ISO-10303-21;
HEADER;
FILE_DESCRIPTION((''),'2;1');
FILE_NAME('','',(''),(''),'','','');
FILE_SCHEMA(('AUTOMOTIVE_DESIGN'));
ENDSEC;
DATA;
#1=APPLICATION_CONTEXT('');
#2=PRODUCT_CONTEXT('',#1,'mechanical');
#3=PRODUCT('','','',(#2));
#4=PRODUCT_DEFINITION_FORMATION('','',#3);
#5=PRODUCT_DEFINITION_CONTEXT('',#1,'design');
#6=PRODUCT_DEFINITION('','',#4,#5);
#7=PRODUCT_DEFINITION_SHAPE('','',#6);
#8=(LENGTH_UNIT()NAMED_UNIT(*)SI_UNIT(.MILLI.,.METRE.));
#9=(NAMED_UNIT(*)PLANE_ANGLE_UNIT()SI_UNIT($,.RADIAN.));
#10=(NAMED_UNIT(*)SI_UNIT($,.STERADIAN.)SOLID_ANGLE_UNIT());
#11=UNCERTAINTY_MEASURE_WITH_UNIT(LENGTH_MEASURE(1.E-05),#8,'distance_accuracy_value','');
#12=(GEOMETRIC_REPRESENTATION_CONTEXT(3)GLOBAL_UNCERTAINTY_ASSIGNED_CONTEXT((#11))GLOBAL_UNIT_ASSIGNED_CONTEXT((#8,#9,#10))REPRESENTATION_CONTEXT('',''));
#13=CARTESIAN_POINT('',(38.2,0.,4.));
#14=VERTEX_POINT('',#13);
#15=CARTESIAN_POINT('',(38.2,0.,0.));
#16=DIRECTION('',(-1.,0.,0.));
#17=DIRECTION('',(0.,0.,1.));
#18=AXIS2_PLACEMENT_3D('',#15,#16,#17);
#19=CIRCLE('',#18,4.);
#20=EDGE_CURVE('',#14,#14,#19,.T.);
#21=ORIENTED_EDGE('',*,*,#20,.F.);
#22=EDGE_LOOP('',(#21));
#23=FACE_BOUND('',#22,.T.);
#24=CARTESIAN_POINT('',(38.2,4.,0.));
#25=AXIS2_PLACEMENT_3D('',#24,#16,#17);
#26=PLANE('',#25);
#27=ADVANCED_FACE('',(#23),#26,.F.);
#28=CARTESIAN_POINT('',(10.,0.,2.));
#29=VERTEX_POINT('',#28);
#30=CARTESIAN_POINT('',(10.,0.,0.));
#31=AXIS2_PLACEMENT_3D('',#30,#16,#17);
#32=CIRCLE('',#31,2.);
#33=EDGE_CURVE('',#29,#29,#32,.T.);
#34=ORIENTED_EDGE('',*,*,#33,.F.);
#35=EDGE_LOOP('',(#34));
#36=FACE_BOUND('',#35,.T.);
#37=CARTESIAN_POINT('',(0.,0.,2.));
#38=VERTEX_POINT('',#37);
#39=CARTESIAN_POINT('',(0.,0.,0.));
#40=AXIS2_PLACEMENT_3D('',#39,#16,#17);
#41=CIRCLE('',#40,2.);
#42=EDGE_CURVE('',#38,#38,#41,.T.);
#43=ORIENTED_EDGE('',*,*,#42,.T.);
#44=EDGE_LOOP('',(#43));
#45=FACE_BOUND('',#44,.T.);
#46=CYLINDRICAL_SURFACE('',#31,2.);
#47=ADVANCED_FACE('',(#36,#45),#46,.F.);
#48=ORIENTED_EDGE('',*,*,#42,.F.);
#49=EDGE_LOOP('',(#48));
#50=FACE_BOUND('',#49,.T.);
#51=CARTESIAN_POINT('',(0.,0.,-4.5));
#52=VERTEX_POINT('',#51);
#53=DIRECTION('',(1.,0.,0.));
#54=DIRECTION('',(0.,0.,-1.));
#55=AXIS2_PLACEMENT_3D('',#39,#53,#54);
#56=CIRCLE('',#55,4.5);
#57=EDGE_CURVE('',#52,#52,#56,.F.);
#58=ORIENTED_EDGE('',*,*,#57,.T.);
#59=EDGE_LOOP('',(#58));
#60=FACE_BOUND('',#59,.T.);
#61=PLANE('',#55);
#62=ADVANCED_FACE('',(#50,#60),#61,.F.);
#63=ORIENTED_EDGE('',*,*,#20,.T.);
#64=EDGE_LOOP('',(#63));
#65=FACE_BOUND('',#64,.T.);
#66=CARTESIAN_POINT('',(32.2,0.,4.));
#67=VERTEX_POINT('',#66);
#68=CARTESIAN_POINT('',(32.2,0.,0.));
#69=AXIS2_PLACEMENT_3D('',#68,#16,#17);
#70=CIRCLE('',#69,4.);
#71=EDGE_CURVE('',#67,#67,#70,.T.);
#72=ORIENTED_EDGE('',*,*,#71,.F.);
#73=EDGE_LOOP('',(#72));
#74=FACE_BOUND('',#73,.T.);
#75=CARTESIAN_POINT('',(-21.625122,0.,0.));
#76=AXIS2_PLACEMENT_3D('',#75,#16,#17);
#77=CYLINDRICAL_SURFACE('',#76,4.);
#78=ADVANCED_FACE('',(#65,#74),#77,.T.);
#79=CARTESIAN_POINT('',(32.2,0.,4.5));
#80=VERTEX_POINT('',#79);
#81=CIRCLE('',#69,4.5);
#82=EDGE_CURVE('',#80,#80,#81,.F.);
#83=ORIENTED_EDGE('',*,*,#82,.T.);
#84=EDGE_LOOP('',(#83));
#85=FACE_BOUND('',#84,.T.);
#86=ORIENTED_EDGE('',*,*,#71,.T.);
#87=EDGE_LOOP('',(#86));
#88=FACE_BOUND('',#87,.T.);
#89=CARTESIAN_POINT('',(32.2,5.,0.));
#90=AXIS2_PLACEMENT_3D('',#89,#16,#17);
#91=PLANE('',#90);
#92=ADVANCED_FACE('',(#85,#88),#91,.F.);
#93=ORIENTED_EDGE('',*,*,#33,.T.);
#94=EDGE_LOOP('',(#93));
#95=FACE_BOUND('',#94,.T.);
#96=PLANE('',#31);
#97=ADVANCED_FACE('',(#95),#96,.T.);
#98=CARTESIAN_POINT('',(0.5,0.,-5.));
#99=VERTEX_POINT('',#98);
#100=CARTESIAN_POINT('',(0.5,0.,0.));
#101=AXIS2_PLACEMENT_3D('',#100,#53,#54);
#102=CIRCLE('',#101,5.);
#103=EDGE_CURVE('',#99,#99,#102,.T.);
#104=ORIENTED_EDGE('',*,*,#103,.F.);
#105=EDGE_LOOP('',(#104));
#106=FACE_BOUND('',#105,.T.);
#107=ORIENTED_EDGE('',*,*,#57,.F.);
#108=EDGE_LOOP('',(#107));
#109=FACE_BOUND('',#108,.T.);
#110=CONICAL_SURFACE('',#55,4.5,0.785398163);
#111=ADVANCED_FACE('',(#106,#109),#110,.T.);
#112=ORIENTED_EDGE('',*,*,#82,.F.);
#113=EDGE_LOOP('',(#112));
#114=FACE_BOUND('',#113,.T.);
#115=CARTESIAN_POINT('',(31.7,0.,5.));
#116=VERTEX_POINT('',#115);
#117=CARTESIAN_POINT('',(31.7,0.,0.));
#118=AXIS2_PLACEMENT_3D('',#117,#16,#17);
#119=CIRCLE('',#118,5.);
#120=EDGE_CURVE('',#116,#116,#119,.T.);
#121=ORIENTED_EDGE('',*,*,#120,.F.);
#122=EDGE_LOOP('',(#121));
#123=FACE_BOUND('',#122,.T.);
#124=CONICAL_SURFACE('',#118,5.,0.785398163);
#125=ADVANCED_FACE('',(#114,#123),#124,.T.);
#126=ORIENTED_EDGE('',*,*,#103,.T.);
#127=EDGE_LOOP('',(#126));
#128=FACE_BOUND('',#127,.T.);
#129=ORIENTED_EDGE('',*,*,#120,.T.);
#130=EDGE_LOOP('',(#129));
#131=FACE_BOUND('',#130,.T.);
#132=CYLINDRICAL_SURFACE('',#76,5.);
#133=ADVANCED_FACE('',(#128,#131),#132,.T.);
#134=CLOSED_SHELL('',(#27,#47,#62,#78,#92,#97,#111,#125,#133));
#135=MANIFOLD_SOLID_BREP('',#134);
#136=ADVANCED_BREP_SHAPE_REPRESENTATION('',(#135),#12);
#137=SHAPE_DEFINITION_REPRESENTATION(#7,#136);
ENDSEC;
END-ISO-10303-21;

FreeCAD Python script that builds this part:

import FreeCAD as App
import Part
import Sketcher

V = App.Vector


def edges_at(feature, points):
    """Names of the edges that pass closest to the given points."""
    edges = feature.Shape.Edges
    near = lambda p: min(range(len(edges)), key=lambda i: edges[i].distToShape(Part.Vertex(*p))[0])
    return sorted({f"Edge{near(p) + 1}" for p in points})


def add_polygon(sketch, points):
    """Adds a closed chain of lines whose ends are joined by coincident constraints."""
    first, n = sketch.GeometryCount, len(points)
    for a, b in zip(points, points[1:] + points[:1]):
        sketch.addGeometry(Part.LineSegment(App.Vector(*a, 0), App.Vector(*b, 0)), False)
    for i in range(n):
        sketch.addConstraint(Sketcher.Constraint("Coincident", first + i, 2, first + (i + 1) % n, 1))

doc = App.newDocument("Part")
body = doc.addObject("PartDesign::Body", "Body")

sketch1 = doc.addObject("Sketcher::SketchObject", "Sketch")
body.addObject(sketch1)
sketch1.AttachmentSupport = (doc.XY_Plane, [""])
sketch1.MapMode = "FlatFace"
add_polygon(sketch1, [(0, 5), (0, 0), (38.2, 0), (38.2, 4), (32.2, 4), (32.2, 5)])
sketch1.addConstraint(Sketcher.Constraint("Vertical", 0))
sketch1.addConstraint(Sketcher.Constraint("Horizontal", 1))
sketch1.addConstraint(Sketcher.Constraint("Vertical", 2))
sketch1.addConstraint(Sketcher.Constraint("Horizontal", 3))
sketch1.addConstraint(Sketcher.Constraint("Vertical", 4))
sketch1.addConstraint(Sketcher.Constraint("Horizontal", 5))
sketch1.addConstraint(Sketcher.Constraint("Coincident", 0, 2, -1, 1))
sketch1.addConstraint(Sketcher.Constraint("DistanceX", 3, 2, 3, 1, 6.0))
sketch1.addConstraint(Sketcher.Constraint("DistanceY", 0, 2, 0, 1, 5.0))
sketch1.addConstraint(Sketcher.Constraint("DistanceY", 2, 1, 2, 2, 4.0))
sketch1.addConstraint(Sketcher.Constraint("DistanceX", 1, 1, 1, 2, 38.2))
revolution = doc.addObject("PartDesign::Revolution", "Revolution")
body.addObject(revolution)
revolution.Profile = sketch1
revolution.ReferenceAxis = (sketch1, ["H_Axis"])
revolution.Angle = 360
doc.recompute()

chamfer = doc.addObject("PartDesign::Chamfer", "Chamfer")
body.addObject(chamfer)
chamfer.Base = (revolution, edges_at(revolution, [(32.2, 0, -5), (0, 0, -5)]))
chamfer.Size = 0.5

sketch2 = doc.addObject("Sketcher::SketchObject", "Sketch001")
body.addObject(sketch2)
sketch2.AttachmentSupport = (doc.YZ_Plane, [""])
sketch2.MapMode = "FlatFace"
sketch2.addGeometry(Part.Circle(V(0, 0, 0), V(0, 0, 1), 2), False)
sketch2.addConstraint(Sketcher.Constraint("Coincident", 0, 3, -1, 1))
sketch2.addConstraint(Sketcher.Constraint("Diameter", 0, 4.0))
pocket1 = doc.addObject("PartDesign::Pocket", "Pocket")
body.addObject(pocket1)
pocket1.Profile = sketch2
pocket1.Length = 10
pocket1.Reversed = True

doc.recompute()
